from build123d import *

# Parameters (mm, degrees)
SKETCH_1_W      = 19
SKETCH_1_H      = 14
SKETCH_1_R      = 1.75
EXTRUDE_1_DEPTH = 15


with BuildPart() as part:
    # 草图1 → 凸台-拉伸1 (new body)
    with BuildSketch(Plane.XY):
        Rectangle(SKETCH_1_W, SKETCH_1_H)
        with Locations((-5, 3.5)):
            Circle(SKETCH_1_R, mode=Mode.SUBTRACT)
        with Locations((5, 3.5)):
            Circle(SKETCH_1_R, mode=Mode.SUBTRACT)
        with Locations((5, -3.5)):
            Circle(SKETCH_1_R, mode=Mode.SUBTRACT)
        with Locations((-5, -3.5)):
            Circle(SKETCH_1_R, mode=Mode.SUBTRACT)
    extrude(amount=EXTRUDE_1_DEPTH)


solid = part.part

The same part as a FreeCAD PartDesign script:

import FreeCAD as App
import Part
import Sketcher


def add_polygon(sketch, points):
    """Adds a closed chain of lines whose ends are joined by coincident constraints."""
    first, n = sketch.GeometryCount, len(points)
    for a, b in zip(points, points[1:] + points[:1]):
        sketch.addGeometry(Part.LineSegment(App.Vector(*a, 0), App.Vector(*b, 0)), False)
    for i in range(n):
        sketch.addConstraint(Sketcher.Constraint("Coincident", first + i, 2, first + (i + 1) % n, 1))

doc = App.newDocument("Part")
params = doc.addObject("Spreadsheet::Sheet", "Params")
for row, (alias, value) in enumerate([
    ("sketch1_diameter", "3.5 mm"),
    ("sketch1_width", "19 mm"),
    ("sketch1_height", "14 mm"),
    ("pad1_length", "15 mm"),
], start=1):
    params.set(f"A{row}", alias)
    params.set(f"B{row}", "=" + value)
    params.setAlias(f"B{row}", alias)

body = doc.addObject("PartDesign::Body", "Body")

sketch1 = body.newObject("Sketcher::SketchObject", "Sketch")
sketch1.AttachmentSupport = (doc.getObject("XY_Plane"), [""])
sketch1.MapMode = "FlatFace"
add_polygon(sketch1, [(-9.5, 7), (-9.5, -7), (9.5, -7), (9.5, 7)])
sketch1.addGeometry(Part.Circle(App.Vector(-5, -3.5, 0), App.Vector(0, 0, 1), 1.8), False)
sketch1.addGeometry(Part.Circle(App.Vector(5, -3.5, 0), App.Vector(0, 0, 1), 1.8), False)
sketch1.addGeometry(Part.Circle(App.Vector(-5, 3.5, 0), App.Vector(0, 0, 1), 1.8), False)
sketch1.addGeometry(Part.Circle(App.Vector(5, 3.5, 0), App.Vector(0, 0, 1), 1.8), False)
sketch1.addConstraint([
    Sketcher.Constraint("Vertical", 0),
    Sketcher.Constraint("Horizontal", 1),
    Sketcher.Constraint("Vertical", 2),
    Sketcher.Constraint("Horizontal", 3),
    Sketcher.Constraint("Equal", 4, 5),
    Sketcher.Constraint("Equal", 5, 6),
    Sketcher.Constraint("Equal", 6, 7),
    Sketcher.Constraint("Symmetric", 5, 3, 6, 3, -1, 1),
    Sketcher.Constraint("Symmetric", 4, 3, 7, 3, -1, 1),
    Sketcher.Constraint("Symmetric", 0, 2, 2, 2, -1, 1),
    Sketcher.Constraint("Symmetric", 4, 3, 5, 3, -2),
    Sketcher.Constraint("Diameter", 4, 3.5),
    Sketcher.Constraint("DistanceX", 1, 1, 1, 2, 19.0),
    Sketcher.Constraint("DistanceY", 0, 2, 0, 1, 14.0),
    Sketcher.Constraint("DistanceX", 4, 3, -1, 1, 5.0),
    Sketcher.Constraint("DistanceY", 4, 3, 6, 3, 7.0),
])
sketch1.setExpression("Constraints[15]", "Params.sketch1_diameter")
sketch1.setExpression("Constraints[16]", "Params.sketch1_width")
sketch1.setExpression("Constraints[17]", "Params.sketch1_height")
pad1 = body.newObject("PartDesign::Pad", "Pad")
pad1.Profile = sketch1
pad1.setExpression("Length", "Params.pad1_length")

doc.recompute()
